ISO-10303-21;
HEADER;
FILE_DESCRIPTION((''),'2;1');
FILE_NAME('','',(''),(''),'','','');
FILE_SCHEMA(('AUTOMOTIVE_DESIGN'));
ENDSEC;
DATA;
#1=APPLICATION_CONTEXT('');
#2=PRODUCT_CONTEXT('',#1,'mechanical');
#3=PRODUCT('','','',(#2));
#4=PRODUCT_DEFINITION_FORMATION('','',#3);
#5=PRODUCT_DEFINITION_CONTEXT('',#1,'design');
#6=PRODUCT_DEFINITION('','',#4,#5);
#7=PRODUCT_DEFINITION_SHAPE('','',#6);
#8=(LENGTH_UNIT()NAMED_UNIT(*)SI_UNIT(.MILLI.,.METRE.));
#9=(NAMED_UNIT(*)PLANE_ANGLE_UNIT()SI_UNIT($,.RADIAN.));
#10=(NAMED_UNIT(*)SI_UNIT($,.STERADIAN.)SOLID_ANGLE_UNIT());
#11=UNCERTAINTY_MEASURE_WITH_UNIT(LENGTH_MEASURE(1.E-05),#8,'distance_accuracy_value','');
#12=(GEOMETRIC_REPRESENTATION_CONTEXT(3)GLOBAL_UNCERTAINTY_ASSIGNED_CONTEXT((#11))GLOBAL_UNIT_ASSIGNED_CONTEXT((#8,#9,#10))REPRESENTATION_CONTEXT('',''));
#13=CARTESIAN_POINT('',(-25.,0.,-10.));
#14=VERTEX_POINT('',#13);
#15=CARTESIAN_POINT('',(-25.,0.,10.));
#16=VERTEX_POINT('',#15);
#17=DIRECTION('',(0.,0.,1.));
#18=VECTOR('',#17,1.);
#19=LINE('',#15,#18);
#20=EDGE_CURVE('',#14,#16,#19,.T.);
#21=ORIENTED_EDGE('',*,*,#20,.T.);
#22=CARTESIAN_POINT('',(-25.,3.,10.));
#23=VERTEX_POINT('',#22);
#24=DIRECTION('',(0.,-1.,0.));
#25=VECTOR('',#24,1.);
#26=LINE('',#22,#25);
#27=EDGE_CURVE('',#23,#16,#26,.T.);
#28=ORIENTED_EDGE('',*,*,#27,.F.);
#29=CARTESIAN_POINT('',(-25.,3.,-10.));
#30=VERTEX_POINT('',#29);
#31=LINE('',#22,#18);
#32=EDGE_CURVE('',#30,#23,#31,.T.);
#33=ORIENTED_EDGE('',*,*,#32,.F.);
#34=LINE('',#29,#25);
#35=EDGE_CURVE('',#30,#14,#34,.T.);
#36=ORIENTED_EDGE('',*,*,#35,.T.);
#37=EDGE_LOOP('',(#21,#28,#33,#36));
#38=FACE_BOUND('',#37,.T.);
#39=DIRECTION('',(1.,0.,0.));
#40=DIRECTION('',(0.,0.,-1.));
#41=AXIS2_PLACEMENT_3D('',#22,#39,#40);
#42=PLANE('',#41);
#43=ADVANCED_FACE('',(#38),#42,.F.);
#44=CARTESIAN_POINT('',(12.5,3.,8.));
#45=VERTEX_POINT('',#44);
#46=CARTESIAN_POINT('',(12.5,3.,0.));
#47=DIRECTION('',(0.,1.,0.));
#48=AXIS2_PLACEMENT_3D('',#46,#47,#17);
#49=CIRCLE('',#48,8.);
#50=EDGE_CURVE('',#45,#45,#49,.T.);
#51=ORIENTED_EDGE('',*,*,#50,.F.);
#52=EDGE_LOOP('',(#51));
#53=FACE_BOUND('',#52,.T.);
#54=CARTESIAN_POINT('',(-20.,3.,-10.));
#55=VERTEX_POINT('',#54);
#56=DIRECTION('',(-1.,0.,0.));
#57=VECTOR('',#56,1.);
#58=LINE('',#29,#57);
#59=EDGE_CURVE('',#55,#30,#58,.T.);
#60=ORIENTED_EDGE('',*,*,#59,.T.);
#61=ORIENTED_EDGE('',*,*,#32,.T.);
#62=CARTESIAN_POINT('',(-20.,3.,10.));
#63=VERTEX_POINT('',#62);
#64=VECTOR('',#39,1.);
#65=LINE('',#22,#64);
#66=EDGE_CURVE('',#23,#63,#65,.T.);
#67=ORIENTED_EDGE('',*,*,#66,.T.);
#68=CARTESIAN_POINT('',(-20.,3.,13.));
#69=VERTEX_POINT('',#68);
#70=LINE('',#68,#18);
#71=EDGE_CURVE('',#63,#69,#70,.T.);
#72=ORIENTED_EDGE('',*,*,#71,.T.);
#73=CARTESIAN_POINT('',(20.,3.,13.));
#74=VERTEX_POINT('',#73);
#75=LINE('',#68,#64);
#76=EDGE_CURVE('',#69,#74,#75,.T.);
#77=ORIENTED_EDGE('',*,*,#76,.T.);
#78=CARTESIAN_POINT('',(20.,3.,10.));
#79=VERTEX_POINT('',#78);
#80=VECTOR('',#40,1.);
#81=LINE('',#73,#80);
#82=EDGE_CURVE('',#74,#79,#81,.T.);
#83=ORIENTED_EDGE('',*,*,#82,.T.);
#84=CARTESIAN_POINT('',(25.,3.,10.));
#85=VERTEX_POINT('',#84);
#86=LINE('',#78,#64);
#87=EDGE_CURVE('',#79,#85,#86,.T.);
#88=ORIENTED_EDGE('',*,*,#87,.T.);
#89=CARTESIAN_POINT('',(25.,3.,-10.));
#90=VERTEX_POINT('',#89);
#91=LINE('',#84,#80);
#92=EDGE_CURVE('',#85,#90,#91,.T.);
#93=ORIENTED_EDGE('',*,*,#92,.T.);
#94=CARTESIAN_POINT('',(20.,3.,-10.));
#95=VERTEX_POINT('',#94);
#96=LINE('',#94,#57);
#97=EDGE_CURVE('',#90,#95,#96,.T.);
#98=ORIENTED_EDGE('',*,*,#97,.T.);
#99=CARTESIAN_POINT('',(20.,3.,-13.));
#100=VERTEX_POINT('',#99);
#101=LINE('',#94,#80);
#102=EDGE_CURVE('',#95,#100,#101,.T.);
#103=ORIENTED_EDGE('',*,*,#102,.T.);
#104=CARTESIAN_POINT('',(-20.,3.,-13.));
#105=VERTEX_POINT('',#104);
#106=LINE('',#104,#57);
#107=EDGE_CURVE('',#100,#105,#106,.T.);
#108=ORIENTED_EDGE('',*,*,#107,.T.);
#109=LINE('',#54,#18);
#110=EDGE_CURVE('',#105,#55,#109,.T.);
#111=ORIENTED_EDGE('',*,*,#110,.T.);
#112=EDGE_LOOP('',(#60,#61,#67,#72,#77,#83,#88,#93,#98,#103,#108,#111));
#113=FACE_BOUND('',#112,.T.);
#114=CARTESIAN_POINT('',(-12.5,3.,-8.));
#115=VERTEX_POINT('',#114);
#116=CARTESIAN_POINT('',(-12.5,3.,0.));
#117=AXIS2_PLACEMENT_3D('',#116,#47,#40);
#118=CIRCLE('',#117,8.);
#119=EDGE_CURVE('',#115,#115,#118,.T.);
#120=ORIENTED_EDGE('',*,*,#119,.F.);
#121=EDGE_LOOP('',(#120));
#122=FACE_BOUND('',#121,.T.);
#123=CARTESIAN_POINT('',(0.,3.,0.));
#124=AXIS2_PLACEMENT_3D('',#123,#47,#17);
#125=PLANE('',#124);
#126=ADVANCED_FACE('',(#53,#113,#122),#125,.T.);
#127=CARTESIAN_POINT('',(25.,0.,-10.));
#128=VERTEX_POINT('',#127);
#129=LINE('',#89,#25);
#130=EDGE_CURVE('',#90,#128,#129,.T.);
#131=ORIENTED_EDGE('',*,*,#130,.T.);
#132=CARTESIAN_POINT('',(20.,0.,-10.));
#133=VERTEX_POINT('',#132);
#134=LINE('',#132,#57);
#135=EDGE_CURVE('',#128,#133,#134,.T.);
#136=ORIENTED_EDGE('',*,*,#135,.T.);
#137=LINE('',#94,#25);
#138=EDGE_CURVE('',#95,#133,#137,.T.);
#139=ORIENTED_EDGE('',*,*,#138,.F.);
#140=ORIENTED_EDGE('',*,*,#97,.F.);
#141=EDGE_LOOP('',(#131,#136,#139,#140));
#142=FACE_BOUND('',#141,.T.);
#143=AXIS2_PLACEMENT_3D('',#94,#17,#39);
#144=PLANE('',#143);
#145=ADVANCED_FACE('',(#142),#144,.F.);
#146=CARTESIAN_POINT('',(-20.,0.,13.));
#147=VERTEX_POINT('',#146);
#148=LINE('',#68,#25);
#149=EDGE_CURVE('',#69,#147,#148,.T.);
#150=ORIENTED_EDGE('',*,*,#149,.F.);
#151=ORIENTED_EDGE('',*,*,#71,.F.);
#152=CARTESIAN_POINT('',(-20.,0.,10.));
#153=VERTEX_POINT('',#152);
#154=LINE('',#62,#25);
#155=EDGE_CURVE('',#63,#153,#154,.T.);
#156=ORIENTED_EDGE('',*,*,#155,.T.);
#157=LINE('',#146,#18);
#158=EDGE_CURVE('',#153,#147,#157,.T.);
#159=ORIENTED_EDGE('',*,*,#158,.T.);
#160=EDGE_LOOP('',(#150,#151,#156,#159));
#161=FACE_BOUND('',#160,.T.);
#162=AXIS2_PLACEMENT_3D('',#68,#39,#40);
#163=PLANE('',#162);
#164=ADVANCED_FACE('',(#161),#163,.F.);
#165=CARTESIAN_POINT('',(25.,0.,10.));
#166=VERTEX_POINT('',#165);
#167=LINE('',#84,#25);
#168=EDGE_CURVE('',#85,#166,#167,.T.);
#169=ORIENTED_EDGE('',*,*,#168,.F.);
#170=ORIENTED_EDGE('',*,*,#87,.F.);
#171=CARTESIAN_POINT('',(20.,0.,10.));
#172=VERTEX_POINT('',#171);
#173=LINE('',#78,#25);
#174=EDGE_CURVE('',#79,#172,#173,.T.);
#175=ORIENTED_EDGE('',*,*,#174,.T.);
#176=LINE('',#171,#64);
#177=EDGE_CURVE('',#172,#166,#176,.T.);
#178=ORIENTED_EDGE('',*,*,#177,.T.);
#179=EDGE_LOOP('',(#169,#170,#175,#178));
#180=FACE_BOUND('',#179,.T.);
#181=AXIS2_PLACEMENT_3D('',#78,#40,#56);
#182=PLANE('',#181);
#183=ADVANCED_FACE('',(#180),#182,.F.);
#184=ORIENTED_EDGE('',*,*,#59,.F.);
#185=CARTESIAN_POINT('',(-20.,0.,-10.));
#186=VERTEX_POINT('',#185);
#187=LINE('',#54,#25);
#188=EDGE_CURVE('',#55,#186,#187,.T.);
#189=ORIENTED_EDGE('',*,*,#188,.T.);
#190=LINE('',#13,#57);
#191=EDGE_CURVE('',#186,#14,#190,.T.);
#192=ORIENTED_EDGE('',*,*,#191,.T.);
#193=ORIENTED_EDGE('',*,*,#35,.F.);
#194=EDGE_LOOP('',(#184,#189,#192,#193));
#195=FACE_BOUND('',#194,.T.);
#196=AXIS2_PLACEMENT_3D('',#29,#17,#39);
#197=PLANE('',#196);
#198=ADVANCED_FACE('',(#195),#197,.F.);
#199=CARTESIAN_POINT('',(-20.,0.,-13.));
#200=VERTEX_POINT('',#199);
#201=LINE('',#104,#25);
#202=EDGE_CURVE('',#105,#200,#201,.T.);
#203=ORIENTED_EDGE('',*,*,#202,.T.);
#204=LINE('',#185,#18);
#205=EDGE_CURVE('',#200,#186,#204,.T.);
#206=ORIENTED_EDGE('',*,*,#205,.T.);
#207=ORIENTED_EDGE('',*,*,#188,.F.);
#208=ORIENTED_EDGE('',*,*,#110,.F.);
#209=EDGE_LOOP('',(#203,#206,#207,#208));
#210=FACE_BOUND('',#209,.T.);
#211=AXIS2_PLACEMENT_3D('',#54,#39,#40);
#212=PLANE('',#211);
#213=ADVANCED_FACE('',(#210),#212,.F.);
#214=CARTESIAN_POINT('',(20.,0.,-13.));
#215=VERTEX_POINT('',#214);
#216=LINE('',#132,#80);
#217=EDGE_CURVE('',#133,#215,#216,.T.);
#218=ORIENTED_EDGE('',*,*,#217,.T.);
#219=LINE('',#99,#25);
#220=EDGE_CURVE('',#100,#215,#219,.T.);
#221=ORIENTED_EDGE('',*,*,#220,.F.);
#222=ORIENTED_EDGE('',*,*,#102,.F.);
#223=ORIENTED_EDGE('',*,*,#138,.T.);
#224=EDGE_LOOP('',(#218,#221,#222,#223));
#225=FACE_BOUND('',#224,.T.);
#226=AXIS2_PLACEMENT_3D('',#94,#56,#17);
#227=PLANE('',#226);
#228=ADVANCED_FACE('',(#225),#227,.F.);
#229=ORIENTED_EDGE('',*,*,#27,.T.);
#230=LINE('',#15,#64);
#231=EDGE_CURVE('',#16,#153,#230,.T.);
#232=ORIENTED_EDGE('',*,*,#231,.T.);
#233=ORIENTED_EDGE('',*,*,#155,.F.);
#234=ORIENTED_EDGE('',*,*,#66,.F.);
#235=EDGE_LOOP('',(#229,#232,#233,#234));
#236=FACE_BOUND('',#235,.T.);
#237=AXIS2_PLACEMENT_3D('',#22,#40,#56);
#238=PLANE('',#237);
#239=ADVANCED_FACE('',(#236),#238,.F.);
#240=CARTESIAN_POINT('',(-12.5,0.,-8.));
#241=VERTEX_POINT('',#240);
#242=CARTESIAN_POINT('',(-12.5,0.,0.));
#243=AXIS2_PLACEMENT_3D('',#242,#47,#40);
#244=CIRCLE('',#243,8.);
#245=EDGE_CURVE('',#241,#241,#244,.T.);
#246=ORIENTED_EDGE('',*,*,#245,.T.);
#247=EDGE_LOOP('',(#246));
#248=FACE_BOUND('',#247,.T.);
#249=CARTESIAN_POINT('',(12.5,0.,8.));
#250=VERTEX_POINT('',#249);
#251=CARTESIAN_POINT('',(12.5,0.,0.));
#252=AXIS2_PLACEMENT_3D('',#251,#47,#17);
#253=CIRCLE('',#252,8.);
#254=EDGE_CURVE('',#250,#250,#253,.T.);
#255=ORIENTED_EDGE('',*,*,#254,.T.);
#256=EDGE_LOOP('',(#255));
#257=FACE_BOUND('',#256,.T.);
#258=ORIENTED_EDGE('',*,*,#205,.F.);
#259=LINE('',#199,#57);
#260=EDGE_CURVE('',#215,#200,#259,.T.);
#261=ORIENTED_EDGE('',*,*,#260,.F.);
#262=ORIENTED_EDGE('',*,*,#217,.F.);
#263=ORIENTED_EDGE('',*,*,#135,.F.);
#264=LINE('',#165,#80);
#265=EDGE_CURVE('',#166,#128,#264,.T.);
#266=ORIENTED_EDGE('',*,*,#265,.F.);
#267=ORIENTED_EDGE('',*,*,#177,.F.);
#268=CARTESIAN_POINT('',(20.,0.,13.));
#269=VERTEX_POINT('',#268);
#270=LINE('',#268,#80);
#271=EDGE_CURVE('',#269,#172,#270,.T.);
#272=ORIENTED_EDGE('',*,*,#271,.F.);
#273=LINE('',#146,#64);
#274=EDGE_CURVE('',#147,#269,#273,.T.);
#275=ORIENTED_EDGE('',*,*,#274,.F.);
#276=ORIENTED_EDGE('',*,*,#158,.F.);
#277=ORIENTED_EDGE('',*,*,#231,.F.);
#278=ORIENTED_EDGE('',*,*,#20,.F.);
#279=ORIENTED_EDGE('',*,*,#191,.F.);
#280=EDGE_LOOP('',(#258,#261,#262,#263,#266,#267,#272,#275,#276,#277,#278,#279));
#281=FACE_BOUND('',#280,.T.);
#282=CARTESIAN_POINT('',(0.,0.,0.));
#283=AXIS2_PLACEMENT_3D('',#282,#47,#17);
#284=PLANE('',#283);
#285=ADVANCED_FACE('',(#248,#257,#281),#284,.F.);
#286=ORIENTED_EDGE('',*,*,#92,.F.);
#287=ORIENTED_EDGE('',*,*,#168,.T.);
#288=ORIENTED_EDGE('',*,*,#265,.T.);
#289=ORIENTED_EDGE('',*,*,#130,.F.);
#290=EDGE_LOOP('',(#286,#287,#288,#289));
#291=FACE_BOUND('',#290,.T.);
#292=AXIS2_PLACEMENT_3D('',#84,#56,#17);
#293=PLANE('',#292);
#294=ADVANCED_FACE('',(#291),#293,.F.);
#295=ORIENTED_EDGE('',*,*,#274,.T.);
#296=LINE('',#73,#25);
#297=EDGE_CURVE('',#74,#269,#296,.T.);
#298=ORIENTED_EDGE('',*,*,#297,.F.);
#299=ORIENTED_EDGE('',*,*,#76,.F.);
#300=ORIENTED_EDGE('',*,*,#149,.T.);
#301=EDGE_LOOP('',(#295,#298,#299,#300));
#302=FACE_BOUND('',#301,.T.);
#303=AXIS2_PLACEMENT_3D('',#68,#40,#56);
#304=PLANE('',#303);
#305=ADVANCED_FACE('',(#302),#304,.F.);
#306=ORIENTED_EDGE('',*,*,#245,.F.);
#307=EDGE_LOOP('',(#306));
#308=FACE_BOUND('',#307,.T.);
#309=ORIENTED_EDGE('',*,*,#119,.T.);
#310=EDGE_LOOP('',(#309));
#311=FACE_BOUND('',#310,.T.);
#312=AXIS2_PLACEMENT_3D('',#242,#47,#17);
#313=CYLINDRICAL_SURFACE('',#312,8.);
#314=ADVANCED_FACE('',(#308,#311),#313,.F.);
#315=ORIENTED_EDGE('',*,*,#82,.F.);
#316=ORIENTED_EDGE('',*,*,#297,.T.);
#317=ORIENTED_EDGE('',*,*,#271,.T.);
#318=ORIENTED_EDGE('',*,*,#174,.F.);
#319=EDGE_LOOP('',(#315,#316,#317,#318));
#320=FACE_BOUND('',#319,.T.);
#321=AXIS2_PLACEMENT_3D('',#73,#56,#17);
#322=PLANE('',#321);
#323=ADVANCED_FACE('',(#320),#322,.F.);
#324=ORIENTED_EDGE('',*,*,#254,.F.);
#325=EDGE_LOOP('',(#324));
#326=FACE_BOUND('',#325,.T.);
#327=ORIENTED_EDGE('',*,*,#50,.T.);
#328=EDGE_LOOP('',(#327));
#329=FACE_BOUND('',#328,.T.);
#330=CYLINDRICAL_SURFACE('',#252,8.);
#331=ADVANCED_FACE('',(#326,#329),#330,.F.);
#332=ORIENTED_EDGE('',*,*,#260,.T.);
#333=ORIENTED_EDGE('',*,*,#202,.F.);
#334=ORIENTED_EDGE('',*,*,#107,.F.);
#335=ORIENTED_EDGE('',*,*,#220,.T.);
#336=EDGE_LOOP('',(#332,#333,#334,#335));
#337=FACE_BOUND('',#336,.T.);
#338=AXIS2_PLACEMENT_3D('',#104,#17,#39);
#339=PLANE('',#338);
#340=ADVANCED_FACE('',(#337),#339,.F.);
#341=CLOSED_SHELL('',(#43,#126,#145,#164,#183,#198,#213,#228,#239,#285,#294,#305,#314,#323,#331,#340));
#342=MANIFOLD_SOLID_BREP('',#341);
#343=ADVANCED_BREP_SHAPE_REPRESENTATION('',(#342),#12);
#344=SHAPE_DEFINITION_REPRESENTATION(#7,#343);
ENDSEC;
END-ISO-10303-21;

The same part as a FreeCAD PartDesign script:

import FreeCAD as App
import Part
import Sketcher


def add_polygon(sketch, points):
    """Adds a closed chain of lines whose ends are joined by coincident constraints."""
    first, n = sketch.GeometryCount, len(points)
    for a, b in zip(points, points[1:] + points[:1]):
        sketch.addGeometry(Part.LineSegment(App.Vector(*a, 0), App.Vector(*b, 0)), False)
    for i in range(n):
        sketch.addConstraint(Sketcher.Constraint("Coincident", first + i, 2, first + (i + 1) % n, 1))

doc = App.newDocument("Part")
body = doc.addObject("PartDesign::Body", "Body")

sketch1 = body.newObject("Sketcher::SketchObject", "Sketch")
sketch1.AttachmentSupport = (doc.getObject("XZ_Plane"), [""])
sketch1.MapMode = "FlatFace"
add_polygon(sketch1, [(-20, -13), (-20, -10), (-25, -10), (-25, 10), (-20, 10), (-20, 13), (20, 13), (20, 10), (25, 10), (25, -10), (20, -10), (20, -13)])
sketch1.addConstraint(Sketcher.Constraint("Vertical", 0))
sketch1.addConstraint(Sketcher.Constraint("Horizontal", 1))
sketch1.addConstraint(Sketcher.Constraint("Vertical", 2))
sketch1.addConstraint(Sketcher.Constraint("Horizontal", 3))
sketch1.addConstraint(Sketcher.Constraint("Vertical", 4))
sketch1.addConstraint(Sketcher.Constraint("Horizontal", 5))
sketch1.addConstraint(Sketcher.Constraint("Vertical", 6))
sketch1.addConstraint(Sketcher.Constraint("Horizontal", 7))
sketch1.addConstraint(Sketcher.Constraint("Vertical", 8))
sketch1.addConstraint(Sketcher.Constraint("Horizontal", 9))
sketch1.addConstraint(Sketcher.Constraint("Vertical", 10))
sketch1.addConstraint(Sketcher.Constraint("Horizontal", 11))
sketch1.addConstraint(Sketcher.Constraint("Symmetric", 0, 2, 6, 2, -1, 1))
sketch1.addConstraint(Sketcher.Constraint("Symmetric", 2, 2, 8, 2, -1, 1))
sketch1.addConstraint(Sketcher.Constraint("Symmetric", 4, 2, 10, 2, -1, 1))
sketch1.addConstraint(Sketcher.Constraint("Symmetric", 3, 2, 6, 2, -2))
sketch1.addConstraint(Sketcher.Constraint("DistanceX", 1, 2, 1, 1, 5.0))
sketch1.addConstraint(Sketcher.Constraint("DistanceX", 5, 1, 5, 2, 40.0))
sketch1.addConstraint(Sketcher.Constraint("DistanceY", 0, 1, 0, 2, 3.0))
sketch1.addConstraint(Sketcher.Constraint("DistanceY", 2, 1, 2, 2, 20.0))
pad1 = body.newObject("PartDesign::Pad", "Pad")
pad1.Profile = sketch1
pad1.Length = 3
pad1.Reversed = True

sketch2 = body.newObject("Sketcher::SketchObject", "Sketch001")
sketch2.AttachmentSupport = (doc.getObject("XZ_Plane"), [""])
sketch2.MapMode = "FlatFace"
sketch2.AttachmentOffset = App.Placement(App.Vector(0, 0, -3), App.Rotation())
sketch2.addGeometry(Part.Circle(App.Vector(12, 0, 0), App.Vector(0, 0, 1), 8), False)
sketch2.addGeometry(Part.Circle(App.Vector(-12, 0, 0), App.Vector(0, 0, 1), 8), False)
sketch2.addConstraint(Sketcher.Constraint("Equal", 0, 1))
sketch2.addConstraint(Sketcher.Constraint("Symmetric", 0, 3, 1, 3, -1, 1))
sketch2.addConstraint(Sketcher.Constraint("PointOnObject", 0, 3, -1))
sketch2.addConstraint(Sketcher.Constraint("Diameter", 0, 16.0))
sketch2.addConstraint(Sketcher.Constraint("DistanceX", 1, 3, 0, 3, 25.0))
pocket1 = body.newObject("PartDesign::Pocket", "Pocket")
pocket1.Profile = sketch2
pocket1.Length = 3
pocket1.Reversed = True

doc.recompute()
